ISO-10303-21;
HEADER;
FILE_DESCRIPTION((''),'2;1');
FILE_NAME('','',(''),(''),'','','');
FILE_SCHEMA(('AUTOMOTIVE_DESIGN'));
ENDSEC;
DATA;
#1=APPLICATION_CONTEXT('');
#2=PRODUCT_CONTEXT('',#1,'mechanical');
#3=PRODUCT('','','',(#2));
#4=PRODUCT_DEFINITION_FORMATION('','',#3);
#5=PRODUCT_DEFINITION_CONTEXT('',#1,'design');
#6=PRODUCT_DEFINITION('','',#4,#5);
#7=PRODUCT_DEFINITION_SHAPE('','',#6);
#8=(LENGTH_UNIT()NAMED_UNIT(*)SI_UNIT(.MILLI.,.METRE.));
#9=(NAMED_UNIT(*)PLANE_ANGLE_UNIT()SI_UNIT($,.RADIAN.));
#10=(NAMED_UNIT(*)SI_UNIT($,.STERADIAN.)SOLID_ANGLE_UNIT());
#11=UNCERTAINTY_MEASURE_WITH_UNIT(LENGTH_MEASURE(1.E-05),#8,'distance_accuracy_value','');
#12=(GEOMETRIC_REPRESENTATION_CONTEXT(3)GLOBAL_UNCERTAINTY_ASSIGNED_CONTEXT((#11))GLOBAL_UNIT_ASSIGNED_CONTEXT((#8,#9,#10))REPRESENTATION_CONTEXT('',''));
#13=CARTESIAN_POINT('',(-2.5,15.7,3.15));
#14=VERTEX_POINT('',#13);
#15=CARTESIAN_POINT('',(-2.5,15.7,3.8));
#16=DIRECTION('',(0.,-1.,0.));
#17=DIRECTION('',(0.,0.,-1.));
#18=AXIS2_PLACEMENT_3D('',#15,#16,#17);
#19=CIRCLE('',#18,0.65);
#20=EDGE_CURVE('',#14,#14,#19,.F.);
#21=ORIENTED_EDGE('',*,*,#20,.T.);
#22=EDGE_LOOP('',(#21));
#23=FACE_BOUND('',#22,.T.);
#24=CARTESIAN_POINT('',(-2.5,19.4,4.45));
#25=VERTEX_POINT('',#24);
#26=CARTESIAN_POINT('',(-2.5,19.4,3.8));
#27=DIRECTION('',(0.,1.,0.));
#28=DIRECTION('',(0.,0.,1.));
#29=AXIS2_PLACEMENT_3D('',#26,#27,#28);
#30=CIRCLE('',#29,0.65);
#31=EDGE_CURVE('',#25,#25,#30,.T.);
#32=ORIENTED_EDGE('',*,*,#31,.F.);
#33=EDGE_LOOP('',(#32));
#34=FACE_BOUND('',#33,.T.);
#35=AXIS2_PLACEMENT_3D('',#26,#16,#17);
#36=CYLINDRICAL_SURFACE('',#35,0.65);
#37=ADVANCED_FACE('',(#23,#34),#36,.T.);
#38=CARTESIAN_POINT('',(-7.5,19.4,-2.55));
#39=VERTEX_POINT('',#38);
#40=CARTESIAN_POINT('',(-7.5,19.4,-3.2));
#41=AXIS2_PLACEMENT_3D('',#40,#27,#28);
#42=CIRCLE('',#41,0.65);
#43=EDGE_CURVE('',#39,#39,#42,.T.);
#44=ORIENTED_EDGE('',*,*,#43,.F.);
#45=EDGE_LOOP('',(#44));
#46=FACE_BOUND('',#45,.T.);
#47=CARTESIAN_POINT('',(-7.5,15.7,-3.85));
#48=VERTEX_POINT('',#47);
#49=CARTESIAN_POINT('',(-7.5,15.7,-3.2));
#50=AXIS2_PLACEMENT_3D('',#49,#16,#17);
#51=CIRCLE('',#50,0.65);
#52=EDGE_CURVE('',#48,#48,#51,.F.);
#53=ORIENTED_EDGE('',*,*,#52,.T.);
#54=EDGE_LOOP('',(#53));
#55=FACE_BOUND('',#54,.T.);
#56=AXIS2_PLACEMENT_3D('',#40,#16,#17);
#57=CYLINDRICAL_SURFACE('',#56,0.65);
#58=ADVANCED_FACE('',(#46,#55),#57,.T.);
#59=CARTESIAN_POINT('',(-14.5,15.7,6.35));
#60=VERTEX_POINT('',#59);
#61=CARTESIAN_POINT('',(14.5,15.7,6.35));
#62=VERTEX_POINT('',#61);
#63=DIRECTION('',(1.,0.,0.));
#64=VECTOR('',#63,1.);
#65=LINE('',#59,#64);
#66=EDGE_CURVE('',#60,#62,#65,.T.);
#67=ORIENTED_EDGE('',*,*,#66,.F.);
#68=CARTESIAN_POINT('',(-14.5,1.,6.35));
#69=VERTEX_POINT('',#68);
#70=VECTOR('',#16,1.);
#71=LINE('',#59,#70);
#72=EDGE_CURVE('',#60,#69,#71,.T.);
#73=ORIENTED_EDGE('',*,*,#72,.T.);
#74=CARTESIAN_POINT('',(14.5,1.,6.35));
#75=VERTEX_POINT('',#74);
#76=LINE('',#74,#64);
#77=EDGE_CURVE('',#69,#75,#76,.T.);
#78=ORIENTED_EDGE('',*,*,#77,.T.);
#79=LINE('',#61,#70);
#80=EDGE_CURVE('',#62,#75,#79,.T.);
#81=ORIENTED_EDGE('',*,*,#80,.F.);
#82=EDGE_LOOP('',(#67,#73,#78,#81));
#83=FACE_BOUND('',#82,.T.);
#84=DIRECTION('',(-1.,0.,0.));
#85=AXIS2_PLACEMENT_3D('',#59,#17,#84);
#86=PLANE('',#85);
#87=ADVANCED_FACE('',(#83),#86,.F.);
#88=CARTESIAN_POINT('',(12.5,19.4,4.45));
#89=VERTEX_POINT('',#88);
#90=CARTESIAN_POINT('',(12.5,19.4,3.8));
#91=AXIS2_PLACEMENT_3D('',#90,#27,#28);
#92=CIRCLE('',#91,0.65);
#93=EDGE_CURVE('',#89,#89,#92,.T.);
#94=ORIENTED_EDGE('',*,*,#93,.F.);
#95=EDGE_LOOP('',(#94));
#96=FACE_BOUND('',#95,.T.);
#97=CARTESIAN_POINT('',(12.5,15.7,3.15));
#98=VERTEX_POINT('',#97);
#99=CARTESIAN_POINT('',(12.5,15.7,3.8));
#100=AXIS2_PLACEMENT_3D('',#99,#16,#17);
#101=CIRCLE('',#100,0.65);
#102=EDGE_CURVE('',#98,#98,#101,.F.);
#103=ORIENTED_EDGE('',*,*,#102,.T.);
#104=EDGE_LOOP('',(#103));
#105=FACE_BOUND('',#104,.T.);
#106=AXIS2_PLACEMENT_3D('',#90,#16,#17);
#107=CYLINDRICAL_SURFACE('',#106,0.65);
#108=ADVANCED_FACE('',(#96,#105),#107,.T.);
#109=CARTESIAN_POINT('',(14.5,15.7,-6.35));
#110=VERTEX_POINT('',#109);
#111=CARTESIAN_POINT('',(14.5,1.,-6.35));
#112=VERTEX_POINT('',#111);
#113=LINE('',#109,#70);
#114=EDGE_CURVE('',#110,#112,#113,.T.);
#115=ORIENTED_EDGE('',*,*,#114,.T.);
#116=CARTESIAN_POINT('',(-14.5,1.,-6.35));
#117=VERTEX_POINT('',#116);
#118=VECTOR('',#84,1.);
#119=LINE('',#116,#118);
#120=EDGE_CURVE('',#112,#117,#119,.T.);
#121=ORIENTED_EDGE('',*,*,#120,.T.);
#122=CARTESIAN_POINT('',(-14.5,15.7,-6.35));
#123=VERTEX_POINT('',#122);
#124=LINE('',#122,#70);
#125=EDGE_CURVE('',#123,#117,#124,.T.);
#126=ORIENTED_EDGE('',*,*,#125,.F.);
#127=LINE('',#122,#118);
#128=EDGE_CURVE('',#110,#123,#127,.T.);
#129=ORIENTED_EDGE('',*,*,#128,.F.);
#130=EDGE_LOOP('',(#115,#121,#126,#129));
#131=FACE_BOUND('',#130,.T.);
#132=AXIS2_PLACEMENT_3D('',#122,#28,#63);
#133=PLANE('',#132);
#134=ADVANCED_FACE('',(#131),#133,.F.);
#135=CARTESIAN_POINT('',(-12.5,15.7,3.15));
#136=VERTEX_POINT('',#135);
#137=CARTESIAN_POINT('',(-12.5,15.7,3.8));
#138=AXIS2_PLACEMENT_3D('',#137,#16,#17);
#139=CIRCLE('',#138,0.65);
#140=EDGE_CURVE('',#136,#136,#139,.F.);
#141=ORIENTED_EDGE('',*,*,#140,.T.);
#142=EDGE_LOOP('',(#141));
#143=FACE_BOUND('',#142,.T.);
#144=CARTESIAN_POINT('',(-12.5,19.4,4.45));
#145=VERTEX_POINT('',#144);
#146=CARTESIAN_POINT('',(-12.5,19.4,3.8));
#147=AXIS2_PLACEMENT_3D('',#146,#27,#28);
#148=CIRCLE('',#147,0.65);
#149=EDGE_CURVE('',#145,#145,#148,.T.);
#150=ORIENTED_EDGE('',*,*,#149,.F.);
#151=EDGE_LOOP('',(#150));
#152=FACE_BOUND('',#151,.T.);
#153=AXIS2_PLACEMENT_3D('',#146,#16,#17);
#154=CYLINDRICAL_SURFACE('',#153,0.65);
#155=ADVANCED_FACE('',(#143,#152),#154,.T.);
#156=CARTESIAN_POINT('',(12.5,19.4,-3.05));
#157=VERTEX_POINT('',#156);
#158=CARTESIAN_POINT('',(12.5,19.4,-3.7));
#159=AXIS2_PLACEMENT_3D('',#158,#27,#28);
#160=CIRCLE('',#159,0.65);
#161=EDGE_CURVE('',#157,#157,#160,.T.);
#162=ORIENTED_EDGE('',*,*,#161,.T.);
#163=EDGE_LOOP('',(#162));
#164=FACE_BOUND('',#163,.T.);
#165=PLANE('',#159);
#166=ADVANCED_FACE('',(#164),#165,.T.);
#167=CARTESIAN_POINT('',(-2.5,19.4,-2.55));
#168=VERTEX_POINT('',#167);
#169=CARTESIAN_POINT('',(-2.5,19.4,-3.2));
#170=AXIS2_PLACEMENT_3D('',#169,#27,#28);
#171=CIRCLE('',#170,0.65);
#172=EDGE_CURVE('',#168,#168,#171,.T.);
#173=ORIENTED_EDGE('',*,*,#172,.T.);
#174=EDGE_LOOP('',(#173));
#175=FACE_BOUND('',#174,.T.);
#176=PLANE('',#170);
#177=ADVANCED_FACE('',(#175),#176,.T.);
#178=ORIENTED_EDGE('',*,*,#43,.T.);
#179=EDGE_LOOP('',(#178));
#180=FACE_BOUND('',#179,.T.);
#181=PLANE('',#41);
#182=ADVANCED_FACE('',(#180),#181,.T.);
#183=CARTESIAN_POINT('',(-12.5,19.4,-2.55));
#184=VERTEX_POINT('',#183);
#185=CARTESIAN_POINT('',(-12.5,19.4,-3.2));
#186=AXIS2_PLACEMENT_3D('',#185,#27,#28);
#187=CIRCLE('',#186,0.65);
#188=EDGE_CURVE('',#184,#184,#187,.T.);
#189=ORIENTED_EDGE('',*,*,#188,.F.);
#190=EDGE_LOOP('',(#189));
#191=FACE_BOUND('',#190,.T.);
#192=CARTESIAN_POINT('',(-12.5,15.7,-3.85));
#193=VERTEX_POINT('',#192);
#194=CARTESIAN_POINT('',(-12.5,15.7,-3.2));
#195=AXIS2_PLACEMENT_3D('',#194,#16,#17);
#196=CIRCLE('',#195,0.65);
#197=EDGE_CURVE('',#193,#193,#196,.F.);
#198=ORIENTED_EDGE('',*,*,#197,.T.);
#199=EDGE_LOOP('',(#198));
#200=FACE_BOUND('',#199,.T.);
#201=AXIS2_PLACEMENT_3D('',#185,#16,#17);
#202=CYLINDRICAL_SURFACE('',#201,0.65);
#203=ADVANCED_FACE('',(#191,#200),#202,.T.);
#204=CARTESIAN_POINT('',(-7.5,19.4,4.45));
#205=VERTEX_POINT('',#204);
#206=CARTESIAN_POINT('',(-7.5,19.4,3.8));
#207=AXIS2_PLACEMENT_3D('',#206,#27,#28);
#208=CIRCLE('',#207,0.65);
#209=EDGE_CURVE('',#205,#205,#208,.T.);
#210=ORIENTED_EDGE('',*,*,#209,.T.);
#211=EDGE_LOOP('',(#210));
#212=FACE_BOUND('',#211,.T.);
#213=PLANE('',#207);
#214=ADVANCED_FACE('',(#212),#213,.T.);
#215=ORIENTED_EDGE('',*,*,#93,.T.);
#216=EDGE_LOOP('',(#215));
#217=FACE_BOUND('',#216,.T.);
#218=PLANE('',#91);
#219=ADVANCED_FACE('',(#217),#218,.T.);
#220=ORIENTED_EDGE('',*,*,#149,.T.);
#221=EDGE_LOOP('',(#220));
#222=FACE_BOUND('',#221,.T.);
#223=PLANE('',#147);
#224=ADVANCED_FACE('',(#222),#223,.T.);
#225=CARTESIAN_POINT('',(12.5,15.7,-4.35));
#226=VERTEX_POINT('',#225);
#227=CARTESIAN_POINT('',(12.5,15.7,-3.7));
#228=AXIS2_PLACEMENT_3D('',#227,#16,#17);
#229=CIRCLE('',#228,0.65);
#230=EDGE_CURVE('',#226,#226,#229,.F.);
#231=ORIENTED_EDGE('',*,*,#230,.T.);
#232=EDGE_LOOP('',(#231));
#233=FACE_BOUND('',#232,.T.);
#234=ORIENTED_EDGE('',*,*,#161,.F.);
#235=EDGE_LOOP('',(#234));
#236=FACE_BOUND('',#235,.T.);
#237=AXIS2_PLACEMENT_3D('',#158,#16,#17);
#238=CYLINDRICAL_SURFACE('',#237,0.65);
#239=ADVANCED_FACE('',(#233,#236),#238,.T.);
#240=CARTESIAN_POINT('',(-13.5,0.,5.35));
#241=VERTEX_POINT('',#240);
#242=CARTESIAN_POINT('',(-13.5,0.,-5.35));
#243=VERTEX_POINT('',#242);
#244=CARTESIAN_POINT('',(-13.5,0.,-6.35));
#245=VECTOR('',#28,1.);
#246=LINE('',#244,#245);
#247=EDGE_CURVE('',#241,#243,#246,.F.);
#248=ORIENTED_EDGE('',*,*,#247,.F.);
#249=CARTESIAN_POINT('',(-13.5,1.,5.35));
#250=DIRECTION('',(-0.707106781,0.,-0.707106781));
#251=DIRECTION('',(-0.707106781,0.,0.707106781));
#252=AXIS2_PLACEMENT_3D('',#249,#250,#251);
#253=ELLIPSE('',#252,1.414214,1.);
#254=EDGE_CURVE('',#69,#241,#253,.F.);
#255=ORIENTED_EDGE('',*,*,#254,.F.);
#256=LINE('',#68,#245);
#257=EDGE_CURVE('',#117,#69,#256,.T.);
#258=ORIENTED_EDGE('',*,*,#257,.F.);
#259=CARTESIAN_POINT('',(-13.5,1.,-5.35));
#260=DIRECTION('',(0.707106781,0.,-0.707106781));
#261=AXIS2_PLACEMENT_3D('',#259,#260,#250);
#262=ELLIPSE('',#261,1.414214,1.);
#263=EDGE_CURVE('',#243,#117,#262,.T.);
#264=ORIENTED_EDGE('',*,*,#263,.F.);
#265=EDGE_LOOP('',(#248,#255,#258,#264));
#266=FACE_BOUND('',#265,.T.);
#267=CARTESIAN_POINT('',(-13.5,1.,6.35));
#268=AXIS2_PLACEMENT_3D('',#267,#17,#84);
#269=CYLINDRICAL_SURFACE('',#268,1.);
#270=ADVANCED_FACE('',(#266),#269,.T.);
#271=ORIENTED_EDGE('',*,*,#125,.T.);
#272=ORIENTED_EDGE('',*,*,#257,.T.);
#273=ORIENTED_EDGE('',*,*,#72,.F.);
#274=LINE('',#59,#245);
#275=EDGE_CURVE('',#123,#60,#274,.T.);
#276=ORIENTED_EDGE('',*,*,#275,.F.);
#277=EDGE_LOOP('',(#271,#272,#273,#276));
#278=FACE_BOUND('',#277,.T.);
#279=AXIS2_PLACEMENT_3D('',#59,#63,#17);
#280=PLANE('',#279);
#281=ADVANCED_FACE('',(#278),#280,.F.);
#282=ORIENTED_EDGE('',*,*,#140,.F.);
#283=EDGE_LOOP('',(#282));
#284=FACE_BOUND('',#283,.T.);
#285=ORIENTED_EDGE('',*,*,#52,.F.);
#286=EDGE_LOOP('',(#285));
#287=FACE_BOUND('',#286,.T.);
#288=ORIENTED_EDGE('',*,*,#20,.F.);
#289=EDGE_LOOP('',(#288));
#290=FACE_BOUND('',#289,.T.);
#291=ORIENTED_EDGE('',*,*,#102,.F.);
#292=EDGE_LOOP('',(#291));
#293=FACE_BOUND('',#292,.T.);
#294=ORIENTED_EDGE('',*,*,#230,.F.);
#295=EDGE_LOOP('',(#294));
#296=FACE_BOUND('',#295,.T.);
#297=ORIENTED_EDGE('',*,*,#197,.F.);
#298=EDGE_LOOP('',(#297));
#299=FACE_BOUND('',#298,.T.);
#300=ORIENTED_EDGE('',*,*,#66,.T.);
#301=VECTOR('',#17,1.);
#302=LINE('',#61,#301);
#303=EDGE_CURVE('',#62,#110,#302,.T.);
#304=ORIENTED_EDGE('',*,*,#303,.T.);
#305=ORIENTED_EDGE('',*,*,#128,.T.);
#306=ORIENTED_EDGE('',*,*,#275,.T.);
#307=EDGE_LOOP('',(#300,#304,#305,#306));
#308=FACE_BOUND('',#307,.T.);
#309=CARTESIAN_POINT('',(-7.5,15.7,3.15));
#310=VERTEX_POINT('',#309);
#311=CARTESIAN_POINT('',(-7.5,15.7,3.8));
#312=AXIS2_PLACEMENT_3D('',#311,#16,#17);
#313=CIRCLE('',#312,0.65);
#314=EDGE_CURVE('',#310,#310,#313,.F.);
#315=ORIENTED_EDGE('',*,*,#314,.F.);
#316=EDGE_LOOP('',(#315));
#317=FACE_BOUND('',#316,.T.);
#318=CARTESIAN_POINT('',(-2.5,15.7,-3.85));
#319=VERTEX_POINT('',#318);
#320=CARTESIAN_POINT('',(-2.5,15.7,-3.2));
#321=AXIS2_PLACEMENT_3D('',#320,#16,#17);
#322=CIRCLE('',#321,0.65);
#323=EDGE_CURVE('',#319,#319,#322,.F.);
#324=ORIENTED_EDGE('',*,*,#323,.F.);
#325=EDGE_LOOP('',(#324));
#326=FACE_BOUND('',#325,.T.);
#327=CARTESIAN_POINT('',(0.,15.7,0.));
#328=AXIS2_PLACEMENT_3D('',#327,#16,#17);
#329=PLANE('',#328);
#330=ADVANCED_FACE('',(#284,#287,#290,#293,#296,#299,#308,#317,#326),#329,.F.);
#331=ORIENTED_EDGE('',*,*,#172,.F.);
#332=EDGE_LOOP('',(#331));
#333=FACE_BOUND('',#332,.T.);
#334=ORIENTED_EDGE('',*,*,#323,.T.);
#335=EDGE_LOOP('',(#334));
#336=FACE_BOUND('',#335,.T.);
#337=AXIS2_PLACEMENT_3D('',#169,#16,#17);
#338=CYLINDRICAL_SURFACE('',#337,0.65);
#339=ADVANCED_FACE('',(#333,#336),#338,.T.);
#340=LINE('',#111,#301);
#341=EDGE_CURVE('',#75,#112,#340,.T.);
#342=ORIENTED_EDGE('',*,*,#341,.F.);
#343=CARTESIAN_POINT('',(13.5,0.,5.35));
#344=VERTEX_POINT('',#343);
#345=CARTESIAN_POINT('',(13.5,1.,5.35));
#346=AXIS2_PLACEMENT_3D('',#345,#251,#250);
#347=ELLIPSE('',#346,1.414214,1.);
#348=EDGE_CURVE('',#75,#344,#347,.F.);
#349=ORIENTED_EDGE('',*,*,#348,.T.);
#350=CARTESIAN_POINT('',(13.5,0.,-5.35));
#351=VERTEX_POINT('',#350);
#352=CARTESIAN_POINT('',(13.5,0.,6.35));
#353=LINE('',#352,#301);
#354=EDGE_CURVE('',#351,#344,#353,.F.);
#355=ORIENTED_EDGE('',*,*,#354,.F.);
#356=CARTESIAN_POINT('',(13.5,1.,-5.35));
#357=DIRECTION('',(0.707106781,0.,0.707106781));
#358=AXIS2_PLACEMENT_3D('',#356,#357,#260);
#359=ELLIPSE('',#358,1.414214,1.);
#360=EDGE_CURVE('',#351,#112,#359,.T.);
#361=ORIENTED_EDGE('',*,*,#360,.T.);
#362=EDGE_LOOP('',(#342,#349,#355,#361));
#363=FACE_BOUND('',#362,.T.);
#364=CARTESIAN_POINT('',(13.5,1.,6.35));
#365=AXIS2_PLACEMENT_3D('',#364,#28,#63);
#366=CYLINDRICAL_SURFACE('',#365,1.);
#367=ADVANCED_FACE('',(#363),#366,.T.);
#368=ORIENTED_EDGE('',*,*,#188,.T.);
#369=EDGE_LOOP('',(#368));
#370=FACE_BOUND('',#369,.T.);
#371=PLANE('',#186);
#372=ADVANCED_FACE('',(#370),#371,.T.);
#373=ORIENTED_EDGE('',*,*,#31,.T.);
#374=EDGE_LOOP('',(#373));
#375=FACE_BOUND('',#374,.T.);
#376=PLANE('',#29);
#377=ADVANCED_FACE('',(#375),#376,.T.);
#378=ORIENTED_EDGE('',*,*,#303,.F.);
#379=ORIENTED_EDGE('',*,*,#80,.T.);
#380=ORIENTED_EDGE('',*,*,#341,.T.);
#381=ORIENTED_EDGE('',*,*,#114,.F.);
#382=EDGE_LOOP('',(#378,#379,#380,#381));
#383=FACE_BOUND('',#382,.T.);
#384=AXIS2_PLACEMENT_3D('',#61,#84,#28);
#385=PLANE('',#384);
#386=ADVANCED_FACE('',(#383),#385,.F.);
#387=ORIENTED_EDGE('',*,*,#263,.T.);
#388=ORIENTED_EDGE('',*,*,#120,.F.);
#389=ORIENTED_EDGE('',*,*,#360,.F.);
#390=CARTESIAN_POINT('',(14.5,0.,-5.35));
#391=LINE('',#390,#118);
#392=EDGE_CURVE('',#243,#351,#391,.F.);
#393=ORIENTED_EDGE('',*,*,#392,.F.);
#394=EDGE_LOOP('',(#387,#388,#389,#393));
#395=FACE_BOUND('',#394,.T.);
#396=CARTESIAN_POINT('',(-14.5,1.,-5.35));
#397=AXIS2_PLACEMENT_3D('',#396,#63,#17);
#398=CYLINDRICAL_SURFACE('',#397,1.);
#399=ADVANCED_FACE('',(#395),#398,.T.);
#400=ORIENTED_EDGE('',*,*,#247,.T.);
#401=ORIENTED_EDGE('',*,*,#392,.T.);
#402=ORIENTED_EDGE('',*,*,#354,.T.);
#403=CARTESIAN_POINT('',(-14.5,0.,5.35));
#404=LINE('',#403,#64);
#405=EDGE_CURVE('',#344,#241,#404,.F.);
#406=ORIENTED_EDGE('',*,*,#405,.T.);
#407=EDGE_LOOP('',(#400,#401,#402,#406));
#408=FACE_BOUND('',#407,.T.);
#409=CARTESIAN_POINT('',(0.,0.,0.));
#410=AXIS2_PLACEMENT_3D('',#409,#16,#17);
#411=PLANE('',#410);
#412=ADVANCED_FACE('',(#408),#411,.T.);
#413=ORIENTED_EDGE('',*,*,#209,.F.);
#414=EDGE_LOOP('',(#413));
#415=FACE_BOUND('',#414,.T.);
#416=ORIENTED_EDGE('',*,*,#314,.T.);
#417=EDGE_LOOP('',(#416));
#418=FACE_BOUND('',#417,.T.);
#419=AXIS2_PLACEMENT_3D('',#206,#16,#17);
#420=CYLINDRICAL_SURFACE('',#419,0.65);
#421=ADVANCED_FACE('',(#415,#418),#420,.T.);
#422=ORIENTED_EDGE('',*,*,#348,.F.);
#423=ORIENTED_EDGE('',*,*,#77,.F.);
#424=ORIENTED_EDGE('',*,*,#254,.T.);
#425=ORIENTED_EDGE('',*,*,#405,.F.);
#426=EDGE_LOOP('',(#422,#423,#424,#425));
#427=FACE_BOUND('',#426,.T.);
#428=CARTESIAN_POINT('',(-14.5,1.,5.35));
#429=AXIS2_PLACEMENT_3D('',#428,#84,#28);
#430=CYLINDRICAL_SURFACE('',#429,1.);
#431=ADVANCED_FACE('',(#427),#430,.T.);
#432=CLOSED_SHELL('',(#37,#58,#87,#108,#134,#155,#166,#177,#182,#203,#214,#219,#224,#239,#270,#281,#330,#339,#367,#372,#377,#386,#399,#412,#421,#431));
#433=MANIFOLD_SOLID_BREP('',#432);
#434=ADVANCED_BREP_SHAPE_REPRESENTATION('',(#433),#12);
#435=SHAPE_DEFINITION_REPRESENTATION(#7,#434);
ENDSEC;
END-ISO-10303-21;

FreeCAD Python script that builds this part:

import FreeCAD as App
import Part
import Sketcher
from FreeCAD import Vector
Q = App.Units.Quantity


def edges_at(feature, points):
    """Names of the edges that pass closest to the given points."""
    edges = feature.Shape.Edges
    near = lambda p: min(range(len(edges)), key=lambda i: edges[i].distToShape(Part.Vertex(*p))[0])
    return sorted({f"Edge{near(p) + 1}" for p in points})


def add_polygon(sketch, points):
    """Adds a closed chain of lines whose ends are joined by coincident constraints."""
    first, n = sketch.GeometryCount, len(points)
    for a, b in zip(points, points[1:] + points[:1]):
        sketch.addGeometry(Part.LineSegment(App.Vector(*a, 0), App.Vector(*b, 0)), False)
    for i in range(n):
        sketch.addConstraint(Sketcher.Constraint("Coincident", first + i, 2, first + (i + 1) % n, 1))

doc = App.newDocument("Part")
body = doc.addObject("PartDesign::Body", "Body")

# Sketch on XZ plane
sketch1 = doc.addObject("Sketcher::SketchObject", "Sketch")
body.addObject(sketch1)
sketch1.AttachmentSupport = (doc.XZ_Plane, [""])
sketch1.MapMode = "FlatFace"
add_polygon(sketch1, [(-14.5, -6.35), (-14.5, 6.35), (14.5, 6.35), (14.5, -6.35)])  # lines 0-3
sketch1.addConstraint([
    Sketcher.Constraint("Vertical", 0),
    Sketcher.Constraint("Horizontal", 1),
    Sketcher.Constraint("Vertical", 2),
    Sketcher.Constraint("Horizontal", 3),
    Sketcher.Constraint("Symmetric", 0, 2, 2, 2, -1, 1),
    Sketcher.Constraint("DistanceX", 1, 1, 1, 2, Q("29 mm")),
    Sketcher.Constraint("DistanceY", 0, 1, 0, 2, Q("12.7 mm")),
])
pad1 = doc.addObject("PartDesign::Pad", "Pad")
body.addObject(pad1)
pad1.Profile = sketch1
pad1.Length = 15.7
pad1.Reversed = True

# Sketch on XZ plane
sketch2 = doc.addObject("Sketcher::SketchObject", "Sketch001")
body.addObject(sketch2)
sketch2.AttachmentSupport = (doc.XZ_Plane, [""])
sketch2.MapMode = "FlatFace"
sketch2.AttachmentOffset = App.Placement(Vector(0, 0, -15.7), App.Rotation())
sketch2.addGeometry([
    Part.Circle(Vector(12.5, 3.8, 0), Vector(0, 0, 1), 0.65),  # 0
    Part.Circle(Vector(-12.5, 3.8, 0), Vector(0, 0, 1), 0.65),  # 1
    Part.Circle(Vector(-7.5, -3.2, 0), Vector(0, 0, 1), 0.65),  # 2
    Part.Circle(Vector(-2.5, 3.8, 0), Vector(0, 0, 1), 0.65),  # 3
    Part.Circle(Vector(12.5, -3.7, 0), Vector(0, 0, 1), 0.65),  # 4
    Part.Circle(Vector(-2.5, -3.2, 0), Vector(0, 0, 1), 0.65),  # 5
    Part.Circle(Vector(-7.5, 3.8, 0), Vector(0, 0, 1), 0.65),  # 6
    Part.Circle(Vector(-12.5, -3.2, 0), Vector(0, 0, 1), 0.65),  # 7
], False)
sketch2.addConstraint([
    Sketcher.Constraint("Equal", 0, 1),
    Sketcher.Constraint("Equal", 1, 2),
    Sketcher.Constraint("Equal", 2, 3),
    Sketcher.Constraint("Equal", 3, 4),
    Sketcher.Constraint("Equal", 4, 5),
    Sketcher.Constraint("Equal", 5, 6),
    Sketcher.Constraint("Equal", 6, 7),
    Sketcher.Constraint("Symmetric", 0, 3, 1, 3, -2),
    Sketcher.Constraint("Horizontal", 1, 3, 3, 3),
    Sketcher.Constraint("Horizontal", 2, 3, 5, 3),
    Sketcher.Constraint("Horizontal", 3, 3, 6, 3),
    Sketcher.Constraint("Horizontal", 5, 3, 7, 3),
    Sketcher.Constraint("Vertical", 0, 3, 4, 3),
    Sketcher.Constraint("Vertical", 3, 3, 5, 3),
    Sketcher.Constraint("Vertical", 2, 3, 6, 3),
    Sketcher.Constraint("Vertical", 1, 3, 7, 3),
    Sketcher.Constraint("Diameter", 0, Q("1.3 mm")),
    Sketcher.Constraint("DistanceX", 1, 3, 0, 3, Q("25 mm")),
    Sketcher.Constraint("DistanceX", 1, 3, 2, 3, Q("5 mm")),
    Sketcher.Constraint("DistanceY", 2, 3, 1, 3, Q("7 mm")),
    Sketcher.Constraint("DistanceX", 2, 3, 3, 3, Q("5 mm")),
    Sketcher.Constraint("DistanceY", -1, 1, 0, 3, Q("3.8 mm")),
    Sketcher.Constraint("DistanceY", 4, 3, -1, 1, Q("3.7 mm")),
])
pad2 = doc.addObject("PartDesign::Pad", "Pad001")
body.addObject(pad2)
pad2.Profile = sketch2
pad2.Length = 3.7
pad2.Reversed = True
doc.recompute()

fillet = doc.addObject("PartDesign::Fillet", "Fillet")
body.addObject(fillet)
fillet.Base = (pad2, edges_at(pad2, [
    (0, 0, 6.35),
    (-14.5, 0, 0),
    (0, 0, -6.35),
    (14.5, 0, 0),
]))
fillet.Radius = 1

doc.recompute()
